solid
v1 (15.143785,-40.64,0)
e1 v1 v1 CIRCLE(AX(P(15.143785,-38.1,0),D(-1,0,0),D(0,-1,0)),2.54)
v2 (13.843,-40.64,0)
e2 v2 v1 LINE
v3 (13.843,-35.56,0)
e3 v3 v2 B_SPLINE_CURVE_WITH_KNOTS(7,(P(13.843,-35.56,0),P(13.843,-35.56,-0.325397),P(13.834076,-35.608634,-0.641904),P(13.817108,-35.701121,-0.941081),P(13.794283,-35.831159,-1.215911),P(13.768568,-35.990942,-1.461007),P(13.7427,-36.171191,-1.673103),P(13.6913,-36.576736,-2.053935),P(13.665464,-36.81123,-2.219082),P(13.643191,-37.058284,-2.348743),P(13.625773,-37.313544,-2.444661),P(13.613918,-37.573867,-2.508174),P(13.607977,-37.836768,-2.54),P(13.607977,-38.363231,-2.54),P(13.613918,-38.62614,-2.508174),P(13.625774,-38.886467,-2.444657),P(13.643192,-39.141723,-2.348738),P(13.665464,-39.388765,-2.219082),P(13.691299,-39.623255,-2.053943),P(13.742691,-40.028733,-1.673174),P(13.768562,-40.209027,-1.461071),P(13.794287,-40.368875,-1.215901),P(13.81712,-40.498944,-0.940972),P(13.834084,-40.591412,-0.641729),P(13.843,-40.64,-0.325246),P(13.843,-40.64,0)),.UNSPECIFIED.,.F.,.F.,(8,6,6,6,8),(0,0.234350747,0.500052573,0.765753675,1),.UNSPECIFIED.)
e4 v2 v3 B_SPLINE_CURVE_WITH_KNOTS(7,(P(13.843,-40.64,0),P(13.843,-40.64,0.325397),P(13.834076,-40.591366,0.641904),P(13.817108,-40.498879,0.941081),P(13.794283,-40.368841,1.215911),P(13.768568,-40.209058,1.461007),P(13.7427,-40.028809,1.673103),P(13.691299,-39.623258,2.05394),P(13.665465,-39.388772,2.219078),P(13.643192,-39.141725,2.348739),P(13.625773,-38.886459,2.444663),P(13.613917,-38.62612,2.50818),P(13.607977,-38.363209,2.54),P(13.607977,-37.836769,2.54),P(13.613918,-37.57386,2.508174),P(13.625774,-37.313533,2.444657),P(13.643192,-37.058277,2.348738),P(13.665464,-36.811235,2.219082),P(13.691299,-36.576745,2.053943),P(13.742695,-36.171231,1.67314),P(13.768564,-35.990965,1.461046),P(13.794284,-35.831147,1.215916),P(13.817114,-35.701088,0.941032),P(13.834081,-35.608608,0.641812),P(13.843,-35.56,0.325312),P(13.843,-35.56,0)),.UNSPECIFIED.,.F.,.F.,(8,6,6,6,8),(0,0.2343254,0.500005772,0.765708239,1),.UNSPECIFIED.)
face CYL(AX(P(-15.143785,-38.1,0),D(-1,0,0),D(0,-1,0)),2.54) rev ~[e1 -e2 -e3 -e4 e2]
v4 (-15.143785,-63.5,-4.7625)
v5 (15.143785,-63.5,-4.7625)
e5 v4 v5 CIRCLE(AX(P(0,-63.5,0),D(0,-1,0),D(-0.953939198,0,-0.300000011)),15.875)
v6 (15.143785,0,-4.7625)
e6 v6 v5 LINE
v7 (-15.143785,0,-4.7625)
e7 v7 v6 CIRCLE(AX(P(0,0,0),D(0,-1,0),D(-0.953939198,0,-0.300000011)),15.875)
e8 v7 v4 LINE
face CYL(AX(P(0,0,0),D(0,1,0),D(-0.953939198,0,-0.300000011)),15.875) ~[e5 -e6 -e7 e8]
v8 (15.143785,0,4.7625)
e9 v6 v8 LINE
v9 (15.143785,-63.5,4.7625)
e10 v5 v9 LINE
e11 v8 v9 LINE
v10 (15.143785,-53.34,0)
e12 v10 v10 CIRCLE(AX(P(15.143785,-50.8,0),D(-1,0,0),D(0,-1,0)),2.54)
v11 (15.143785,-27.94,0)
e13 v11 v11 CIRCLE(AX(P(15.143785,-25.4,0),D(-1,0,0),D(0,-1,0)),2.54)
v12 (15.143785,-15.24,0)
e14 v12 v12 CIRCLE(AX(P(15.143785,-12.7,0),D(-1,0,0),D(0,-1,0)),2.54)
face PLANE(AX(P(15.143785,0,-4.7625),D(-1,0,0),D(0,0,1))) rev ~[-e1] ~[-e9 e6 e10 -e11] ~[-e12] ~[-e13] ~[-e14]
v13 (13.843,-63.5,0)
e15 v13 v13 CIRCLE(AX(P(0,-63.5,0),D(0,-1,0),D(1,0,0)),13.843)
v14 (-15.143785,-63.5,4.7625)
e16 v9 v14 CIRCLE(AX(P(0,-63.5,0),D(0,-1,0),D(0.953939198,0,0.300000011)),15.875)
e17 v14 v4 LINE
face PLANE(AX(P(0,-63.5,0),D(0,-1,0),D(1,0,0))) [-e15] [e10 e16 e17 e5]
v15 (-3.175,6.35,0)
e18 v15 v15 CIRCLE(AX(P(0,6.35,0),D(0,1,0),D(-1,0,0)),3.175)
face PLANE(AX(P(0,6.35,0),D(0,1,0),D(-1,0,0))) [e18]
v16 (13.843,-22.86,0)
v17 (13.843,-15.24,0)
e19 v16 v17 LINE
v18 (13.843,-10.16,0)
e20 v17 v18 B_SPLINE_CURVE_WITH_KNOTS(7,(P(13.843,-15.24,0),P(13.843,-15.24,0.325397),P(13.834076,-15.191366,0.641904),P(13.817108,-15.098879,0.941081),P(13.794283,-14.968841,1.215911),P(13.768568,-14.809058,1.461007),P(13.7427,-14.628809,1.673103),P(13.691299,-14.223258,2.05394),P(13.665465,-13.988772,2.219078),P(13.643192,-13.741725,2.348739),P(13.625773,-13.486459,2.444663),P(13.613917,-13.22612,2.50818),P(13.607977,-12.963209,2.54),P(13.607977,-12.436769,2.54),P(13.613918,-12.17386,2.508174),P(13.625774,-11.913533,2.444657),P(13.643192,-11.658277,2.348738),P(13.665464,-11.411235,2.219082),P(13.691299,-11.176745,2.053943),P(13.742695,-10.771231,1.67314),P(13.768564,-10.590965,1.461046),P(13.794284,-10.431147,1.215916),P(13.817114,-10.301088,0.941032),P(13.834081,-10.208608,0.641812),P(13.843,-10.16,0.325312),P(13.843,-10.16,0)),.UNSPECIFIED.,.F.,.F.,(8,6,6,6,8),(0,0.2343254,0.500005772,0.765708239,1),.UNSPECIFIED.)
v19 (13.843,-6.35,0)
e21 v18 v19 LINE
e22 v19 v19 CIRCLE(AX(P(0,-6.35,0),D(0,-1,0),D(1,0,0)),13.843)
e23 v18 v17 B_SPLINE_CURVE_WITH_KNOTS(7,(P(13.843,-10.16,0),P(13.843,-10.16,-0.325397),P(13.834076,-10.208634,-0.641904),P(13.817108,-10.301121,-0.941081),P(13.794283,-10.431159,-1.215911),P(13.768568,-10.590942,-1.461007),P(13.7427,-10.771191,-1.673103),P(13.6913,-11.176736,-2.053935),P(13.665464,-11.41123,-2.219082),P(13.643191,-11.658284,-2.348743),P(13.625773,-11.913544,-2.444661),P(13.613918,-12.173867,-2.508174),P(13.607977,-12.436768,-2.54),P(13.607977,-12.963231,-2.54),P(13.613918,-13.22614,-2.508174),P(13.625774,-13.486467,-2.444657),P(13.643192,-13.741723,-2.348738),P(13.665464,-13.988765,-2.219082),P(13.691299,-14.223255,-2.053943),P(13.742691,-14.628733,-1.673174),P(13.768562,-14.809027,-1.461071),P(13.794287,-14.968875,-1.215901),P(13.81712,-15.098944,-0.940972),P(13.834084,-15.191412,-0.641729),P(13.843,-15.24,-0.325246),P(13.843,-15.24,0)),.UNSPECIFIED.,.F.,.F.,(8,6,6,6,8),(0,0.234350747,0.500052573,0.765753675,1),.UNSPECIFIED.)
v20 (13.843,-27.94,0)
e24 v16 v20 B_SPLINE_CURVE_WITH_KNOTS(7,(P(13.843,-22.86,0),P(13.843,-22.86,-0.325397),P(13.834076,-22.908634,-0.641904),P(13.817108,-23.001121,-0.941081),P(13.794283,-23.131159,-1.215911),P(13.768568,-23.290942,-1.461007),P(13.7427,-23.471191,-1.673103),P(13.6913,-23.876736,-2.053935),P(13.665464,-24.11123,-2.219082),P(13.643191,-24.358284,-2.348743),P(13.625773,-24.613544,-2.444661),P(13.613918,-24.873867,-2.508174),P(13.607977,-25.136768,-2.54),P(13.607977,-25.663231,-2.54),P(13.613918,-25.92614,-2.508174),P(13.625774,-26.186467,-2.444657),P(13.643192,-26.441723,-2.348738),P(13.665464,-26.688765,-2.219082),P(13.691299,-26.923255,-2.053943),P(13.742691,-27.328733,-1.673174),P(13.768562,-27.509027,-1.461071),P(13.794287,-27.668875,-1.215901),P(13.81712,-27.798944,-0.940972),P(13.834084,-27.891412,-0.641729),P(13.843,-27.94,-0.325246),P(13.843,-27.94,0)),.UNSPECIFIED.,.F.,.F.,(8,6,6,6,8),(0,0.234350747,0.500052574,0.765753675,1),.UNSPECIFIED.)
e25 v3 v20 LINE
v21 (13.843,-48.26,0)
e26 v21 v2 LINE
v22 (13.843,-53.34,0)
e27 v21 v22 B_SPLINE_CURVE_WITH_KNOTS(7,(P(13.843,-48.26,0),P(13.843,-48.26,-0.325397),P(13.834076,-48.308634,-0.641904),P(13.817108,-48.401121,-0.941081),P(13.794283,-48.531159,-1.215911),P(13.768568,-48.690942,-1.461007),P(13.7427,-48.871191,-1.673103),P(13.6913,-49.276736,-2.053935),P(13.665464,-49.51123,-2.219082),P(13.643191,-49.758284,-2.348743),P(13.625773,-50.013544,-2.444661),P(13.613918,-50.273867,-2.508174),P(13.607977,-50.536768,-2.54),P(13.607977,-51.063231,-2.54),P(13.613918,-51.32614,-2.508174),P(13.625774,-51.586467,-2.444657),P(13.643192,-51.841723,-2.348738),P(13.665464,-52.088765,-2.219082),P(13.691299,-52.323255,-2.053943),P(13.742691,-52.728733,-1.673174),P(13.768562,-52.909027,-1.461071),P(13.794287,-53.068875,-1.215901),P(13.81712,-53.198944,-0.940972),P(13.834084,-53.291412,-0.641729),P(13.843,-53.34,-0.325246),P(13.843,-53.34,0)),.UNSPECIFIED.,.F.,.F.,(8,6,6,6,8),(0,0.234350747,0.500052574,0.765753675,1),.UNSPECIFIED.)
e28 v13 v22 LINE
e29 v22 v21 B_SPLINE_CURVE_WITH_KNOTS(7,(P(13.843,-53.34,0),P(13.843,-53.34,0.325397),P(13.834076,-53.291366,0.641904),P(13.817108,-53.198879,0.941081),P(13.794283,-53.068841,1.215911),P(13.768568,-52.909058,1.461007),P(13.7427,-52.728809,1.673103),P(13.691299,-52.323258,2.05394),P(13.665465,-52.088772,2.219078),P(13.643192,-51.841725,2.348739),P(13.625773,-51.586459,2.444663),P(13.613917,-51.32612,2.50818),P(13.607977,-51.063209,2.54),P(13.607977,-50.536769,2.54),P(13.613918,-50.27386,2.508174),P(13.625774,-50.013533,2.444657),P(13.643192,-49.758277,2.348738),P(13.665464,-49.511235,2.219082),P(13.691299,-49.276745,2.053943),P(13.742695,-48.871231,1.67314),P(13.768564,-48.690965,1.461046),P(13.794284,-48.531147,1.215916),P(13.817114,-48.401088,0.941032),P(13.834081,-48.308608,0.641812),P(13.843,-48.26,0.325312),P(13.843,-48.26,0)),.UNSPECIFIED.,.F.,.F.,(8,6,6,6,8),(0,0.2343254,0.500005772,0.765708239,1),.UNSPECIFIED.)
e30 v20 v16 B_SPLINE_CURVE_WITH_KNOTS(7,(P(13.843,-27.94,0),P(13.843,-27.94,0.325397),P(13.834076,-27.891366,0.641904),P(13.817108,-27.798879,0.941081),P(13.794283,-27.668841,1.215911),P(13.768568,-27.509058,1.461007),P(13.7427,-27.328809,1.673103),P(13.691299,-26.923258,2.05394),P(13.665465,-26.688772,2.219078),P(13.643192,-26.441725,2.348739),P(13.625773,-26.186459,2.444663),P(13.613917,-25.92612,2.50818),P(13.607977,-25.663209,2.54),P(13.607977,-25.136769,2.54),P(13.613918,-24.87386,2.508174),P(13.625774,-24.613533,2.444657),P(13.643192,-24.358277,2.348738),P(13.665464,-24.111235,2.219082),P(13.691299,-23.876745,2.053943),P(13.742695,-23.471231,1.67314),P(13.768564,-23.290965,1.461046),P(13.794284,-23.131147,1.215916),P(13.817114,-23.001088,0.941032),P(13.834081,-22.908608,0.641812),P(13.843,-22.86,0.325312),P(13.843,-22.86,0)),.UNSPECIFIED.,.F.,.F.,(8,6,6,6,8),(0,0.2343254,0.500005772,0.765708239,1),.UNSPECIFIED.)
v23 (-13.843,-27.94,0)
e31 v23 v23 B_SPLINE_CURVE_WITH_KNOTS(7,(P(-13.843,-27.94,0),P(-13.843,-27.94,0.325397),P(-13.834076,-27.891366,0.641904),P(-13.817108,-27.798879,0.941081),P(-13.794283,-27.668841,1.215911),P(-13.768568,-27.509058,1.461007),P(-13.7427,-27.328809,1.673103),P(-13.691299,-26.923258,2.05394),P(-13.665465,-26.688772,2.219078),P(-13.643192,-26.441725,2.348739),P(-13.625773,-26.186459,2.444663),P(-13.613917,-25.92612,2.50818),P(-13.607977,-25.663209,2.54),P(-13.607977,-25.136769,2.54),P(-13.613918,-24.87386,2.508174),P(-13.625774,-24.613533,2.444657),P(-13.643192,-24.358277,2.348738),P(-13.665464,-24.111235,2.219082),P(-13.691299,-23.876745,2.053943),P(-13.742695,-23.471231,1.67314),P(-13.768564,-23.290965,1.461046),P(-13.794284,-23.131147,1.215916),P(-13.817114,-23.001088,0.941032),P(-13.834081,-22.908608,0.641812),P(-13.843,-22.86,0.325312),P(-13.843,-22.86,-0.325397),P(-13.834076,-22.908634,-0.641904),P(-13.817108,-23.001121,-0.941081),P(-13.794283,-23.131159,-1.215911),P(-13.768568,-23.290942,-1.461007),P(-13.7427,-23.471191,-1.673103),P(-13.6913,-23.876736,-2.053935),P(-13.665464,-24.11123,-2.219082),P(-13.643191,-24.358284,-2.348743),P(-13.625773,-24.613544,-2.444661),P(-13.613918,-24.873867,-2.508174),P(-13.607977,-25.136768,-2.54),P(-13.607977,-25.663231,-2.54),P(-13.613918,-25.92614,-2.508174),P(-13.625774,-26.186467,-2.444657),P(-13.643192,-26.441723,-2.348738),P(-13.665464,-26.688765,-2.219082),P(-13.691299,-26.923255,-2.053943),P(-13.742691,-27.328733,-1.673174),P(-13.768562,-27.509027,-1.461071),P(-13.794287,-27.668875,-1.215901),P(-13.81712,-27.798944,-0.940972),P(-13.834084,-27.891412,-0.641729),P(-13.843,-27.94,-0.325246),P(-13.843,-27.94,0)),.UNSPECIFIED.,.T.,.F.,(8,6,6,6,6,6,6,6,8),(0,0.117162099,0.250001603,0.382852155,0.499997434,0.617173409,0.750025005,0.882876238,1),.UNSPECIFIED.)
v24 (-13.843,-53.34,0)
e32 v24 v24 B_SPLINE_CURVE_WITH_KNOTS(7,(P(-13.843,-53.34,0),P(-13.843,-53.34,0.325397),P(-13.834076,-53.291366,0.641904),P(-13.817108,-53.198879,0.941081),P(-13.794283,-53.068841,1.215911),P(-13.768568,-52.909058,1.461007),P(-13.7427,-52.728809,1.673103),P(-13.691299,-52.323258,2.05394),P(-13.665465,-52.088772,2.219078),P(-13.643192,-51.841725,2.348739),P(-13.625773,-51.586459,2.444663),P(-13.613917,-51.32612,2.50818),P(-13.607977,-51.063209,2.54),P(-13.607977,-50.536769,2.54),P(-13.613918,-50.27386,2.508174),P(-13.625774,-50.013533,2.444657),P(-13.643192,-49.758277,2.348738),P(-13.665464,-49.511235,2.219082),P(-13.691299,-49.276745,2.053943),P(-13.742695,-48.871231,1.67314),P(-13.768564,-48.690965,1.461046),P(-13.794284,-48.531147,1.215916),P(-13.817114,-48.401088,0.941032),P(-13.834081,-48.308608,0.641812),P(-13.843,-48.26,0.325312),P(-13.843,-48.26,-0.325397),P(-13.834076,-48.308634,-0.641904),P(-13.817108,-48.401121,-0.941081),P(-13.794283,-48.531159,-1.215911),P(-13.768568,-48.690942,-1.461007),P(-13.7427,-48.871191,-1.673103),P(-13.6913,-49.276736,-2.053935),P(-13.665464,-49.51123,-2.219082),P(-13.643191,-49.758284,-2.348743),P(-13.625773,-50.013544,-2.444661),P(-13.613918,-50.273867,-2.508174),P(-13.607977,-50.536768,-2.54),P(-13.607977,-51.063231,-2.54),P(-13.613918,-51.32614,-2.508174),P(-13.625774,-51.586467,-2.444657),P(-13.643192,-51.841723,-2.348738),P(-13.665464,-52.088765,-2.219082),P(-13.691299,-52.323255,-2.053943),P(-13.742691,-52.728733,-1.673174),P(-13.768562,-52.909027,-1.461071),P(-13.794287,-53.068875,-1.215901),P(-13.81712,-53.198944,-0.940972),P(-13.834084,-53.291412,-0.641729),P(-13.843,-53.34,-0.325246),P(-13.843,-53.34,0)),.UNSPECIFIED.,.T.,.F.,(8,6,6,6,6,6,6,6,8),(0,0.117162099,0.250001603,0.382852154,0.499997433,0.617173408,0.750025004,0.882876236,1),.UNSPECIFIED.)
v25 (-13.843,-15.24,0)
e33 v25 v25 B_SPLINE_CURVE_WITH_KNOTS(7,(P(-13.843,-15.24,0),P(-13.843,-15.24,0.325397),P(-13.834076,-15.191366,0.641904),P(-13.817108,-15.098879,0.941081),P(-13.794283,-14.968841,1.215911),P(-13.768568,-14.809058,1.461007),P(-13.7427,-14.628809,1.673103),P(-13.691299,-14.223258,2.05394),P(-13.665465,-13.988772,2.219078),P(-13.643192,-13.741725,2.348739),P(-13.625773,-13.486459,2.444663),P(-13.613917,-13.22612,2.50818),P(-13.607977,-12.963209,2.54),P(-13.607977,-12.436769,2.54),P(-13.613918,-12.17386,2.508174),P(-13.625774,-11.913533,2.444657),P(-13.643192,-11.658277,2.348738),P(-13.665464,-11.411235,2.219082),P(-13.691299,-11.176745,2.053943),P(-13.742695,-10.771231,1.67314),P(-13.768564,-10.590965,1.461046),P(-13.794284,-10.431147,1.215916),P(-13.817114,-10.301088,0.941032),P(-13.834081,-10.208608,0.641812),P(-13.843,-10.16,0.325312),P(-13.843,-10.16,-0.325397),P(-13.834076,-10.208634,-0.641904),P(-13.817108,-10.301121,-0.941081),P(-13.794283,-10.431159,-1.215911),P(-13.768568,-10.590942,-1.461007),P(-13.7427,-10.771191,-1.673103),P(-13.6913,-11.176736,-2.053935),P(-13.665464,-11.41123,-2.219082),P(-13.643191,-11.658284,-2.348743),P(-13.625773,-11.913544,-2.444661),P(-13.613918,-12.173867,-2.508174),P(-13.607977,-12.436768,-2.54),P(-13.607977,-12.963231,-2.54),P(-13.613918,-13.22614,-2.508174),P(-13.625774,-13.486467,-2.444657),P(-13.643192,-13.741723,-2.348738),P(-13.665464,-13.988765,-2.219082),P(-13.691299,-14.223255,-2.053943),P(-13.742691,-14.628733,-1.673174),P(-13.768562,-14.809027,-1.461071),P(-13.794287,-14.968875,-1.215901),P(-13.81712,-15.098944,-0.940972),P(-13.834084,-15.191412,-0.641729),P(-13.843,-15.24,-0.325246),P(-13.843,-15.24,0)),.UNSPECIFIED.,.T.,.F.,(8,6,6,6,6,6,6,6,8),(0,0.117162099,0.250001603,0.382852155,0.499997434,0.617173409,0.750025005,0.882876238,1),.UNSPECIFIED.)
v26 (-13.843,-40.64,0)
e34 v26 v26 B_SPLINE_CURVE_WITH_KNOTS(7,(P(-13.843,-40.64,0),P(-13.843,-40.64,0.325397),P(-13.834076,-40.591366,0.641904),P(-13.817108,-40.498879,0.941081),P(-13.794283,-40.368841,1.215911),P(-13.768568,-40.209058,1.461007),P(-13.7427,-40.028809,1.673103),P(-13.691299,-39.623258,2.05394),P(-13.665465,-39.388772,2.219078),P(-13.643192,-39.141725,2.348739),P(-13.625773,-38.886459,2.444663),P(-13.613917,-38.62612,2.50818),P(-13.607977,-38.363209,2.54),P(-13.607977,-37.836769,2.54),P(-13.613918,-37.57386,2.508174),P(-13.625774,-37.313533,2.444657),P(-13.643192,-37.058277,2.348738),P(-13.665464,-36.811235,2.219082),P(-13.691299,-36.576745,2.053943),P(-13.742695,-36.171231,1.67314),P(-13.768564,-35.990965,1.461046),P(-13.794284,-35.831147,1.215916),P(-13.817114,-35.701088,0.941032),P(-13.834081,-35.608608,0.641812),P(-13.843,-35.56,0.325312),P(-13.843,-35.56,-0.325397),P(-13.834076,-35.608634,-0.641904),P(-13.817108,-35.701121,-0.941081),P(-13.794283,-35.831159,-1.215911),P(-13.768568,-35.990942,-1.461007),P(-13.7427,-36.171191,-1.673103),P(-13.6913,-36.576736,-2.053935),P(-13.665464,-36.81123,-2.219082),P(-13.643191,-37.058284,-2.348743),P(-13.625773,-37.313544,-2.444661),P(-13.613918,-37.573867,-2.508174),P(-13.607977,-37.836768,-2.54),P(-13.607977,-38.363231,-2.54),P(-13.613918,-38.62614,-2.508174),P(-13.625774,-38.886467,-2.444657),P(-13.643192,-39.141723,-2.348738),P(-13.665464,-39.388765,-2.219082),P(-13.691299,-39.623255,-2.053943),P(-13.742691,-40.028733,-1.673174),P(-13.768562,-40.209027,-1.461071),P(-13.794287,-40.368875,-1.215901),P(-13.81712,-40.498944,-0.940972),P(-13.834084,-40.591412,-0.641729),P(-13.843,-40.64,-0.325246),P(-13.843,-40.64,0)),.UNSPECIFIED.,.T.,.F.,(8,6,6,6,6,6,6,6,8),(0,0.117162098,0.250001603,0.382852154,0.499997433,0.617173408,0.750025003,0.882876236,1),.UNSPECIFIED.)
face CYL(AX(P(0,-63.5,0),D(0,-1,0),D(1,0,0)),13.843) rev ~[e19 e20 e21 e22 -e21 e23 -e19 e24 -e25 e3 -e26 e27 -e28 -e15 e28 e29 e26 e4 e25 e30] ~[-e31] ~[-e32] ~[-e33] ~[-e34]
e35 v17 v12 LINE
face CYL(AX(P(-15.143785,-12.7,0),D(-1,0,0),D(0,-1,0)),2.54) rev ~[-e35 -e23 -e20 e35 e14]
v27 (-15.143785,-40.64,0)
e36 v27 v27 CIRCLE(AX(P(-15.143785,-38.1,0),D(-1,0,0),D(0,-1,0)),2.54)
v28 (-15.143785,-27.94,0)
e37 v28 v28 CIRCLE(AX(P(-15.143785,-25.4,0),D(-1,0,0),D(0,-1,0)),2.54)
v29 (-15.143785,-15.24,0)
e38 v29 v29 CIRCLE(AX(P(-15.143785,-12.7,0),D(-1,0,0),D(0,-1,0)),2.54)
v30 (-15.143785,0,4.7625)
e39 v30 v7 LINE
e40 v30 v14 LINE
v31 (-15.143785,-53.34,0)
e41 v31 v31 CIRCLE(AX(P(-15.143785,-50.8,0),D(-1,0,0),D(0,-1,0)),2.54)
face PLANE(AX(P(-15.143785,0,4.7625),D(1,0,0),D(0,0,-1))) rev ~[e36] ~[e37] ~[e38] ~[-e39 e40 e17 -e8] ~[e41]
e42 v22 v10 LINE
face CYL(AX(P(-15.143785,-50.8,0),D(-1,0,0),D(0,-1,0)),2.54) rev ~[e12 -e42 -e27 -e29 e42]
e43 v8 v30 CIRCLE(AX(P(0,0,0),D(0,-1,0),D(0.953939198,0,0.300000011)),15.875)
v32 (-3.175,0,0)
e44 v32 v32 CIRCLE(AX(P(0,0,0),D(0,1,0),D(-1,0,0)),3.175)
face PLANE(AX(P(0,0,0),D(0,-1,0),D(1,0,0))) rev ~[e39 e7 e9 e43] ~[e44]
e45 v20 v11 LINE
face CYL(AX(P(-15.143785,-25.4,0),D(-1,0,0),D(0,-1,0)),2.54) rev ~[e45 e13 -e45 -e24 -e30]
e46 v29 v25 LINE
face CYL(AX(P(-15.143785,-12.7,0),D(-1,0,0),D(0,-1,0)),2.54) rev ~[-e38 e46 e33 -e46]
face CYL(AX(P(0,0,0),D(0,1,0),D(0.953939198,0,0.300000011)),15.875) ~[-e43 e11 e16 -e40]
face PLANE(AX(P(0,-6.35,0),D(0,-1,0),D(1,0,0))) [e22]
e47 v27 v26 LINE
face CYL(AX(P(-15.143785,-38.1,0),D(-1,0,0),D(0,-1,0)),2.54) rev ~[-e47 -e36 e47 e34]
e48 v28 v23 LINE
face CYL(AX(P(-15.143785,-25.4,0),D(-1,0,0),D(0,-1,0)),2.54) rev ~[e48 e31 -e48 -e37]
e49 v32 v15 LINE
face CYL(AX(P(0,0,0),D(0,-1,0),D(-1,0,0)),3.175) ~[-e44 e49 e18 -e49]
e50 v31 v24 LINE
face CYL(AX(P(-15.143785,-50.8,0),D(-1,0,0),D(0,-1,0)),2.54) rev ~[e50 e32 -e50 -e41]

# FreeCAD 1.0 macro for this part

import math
import FreeCAD as App
import Part
import Sketcher
Q = App.Units.Quantity

doc = App.newDocument("Part")
body = doc.addObject("PartDesign::Body", "Body")

# Sketch on XZ plane
sketch1 = body.newObject("Sketcher::SketchObject", "Sketch")
sketch1.AttachmentSupport = (doc.getObject("XZ_Plane"), [""])
sketch1.MapMode = "FlatFace"
sketch1.addGeometry([
    Part.LineSegment(App.Vector(15, -5, 0), App.Vector(15, 5, 0)),
    Part.ArcOfCircle(Part.Circle(App.Vector(0, 0, 0), App.Vector(0, 0, 1), 16), math.radians(17), math.radians(163)),
    Part.LineSegment(App.Vector(-15, 5, 0), App.Vector(-15, -5, 0)),
    Part.ArcOfCircle(Part.Circle(App.Vector(0, 0, 0), App.Vector(0, 0, 1), 16), math.radians(-163), math.radians(-17)),
], False)
sketch1.addConstraint([
    Sketcher.Constraint("Coincident", 0, 2, 1, 1),
    Sketcher.Constraint("Coincident", 1, 2, 2, 1),
    Sketcher.Constraint("Coincident", 2, 2, 3, 1),
    Sketcher.Constraint("Coincident", 3, 2, 0, 1),
    Sketcher.Constraint("Vertical", 0),
    Sketcher.Constraint("Vertical", 2),
    Sketcher.Constraint("Coincident", 1, 3, -1, 1),
    Sketcher.Constraint("Coincident", 3, 3, -1, 1),
    Sketcher.Constraint("Equal", 1, 3),
    Sketcher.Constraint("Horizontal", 0, 2, 1, 2),
    Sketcher.Constraint("Radius", 1, Q("0.625 in")),
    Sketcher.Constraint("DistanceY", 0, 1, 0, 2, Q("0.375 in")),
])
pad1 = body.newObject("PartDesign::Pad", "Pad")
pad1.Profile = sketch1
pad1.Length = Q("2.5 in")

# Sketch on XZ plane
sketch2 = body.newObject("Sketcher::SketchObject", "Sketch001")
sketch2.AttachmentSupport = (doc.getObject("XZ_Plane"), [""])
sketch2.MapMode = "FlatFace"
sketch2.AttachmentOffset = App.Placement(App.Vector(0, 0, 2.5 * 25.4), App.Rotation())
sketch2.addGeometry(Part.Circle(App.Vector(0, 0, 0), App.Vector(0, 0, 1), 14), False)
sketch2.addConstraint([
    Sketcher.Constraint("Coincident", 0, 3, -1, 1),
    Sketcher.Constraint("Diameter", 0, Q("1.09 in")),
])
pocket1 = body.newObject("PartDesign::Pocket", "Pocket")
pocket1.Profile = sketch2
pocket1.Length = Q("2.25 in")

# Sketch on XZ plane
sketch3 = body.newObject("Sketcher::SketchObject", "Sketch002")
sketch3.AttachmentSupport = (doc.getObject("XZ_Plane"), [""])
sketch3.MapMode = "FlatFace"
sketch3.addGeometry(Part.Circle(App.Vector(0, 0, 0), App.Vector(0, 0, 1), 3.2), False)
sketch3.addConstraint([
    Sketcher.Constraint("Coincident", 0, 3, -1, 1),
    Sketcher.Constraint("Diameter", 0, Q("0.25 in")),
])
pad2 = body.newObject("PartDesign::Pad", "Pad001")
pad2.Profile = sketch3
pad2.Length = Q("0.25 in")
pad2.Reversed = True

# Sketch on YZ plane
sketch4 = body.newObject("Sketcher::SketchObject", "Sketch003")
sketch4.AttachmentSupport = (doc.getObject("YZ_Plane"), [""])
sketch4.MapMode = "FlatFace"
sketch4.AttachmentOffset = App.Placement(App.Vector(0, 0, -15.143785), App.Rotation())
sketch4.addGeometry([
    Part.Circle(App.Vector(-12.7, 0, 0), App.Vector(0, 0, 1), 2.5),
    Part.Circle(App.Vector(-50.8, 0, 0), App.Vector(0, 0, 1), 2.5),
    Part.Circle(App.Vector(-25.4, 0, 0), App.Vector(0, 0, 1), 2.5),
    Part.Circle(App.Vector(-38.1, 0, 0), App.Vector(0, 0, 1), 2.5),
], False)
sketch4.addConstraint([
    Sketcher.Constraint("Equal", 0, 1),
    Sketcher.Constraint("Equal", 1, 2),
    Sketcher.Constraint("Equal", 2, 3),
    Sketcher.Constraint("PointOnObject", 0, 3, -1),
    Sketcher.Constraint("PointOnObject", 1, 3, -1),
    Sketcher.Constraint("PointOnObject", 2, 3, -1),
    Sketcher.Constraint("PointOnObject", 3, 3, -1),
    Sketcher.Constraint("Diameter", 0, Q("0.2 in")),
    Sketcher.Constraint("DistanceX", 1, 3, -1, 1, Q("2 in")),
    Sketcher.Constraint("DistanceX", 2, 3, -1, 1, Q("1 in")),
    Sketcher.Constraint("DistanceX", 3, 3, 0, 3, Q("1 in")),
    Sketcher.Constraint("DistanceX", 0, 3, -1, 1, Q("0.5 in")),
])
pocket2 = body.newObject("PartDesign::Pocket", "Pocket001")
pocket2.Profile = sketch4
pocket2.Type = "ThroughAll"
pocket2.Reversed = True

doc.recompute()
